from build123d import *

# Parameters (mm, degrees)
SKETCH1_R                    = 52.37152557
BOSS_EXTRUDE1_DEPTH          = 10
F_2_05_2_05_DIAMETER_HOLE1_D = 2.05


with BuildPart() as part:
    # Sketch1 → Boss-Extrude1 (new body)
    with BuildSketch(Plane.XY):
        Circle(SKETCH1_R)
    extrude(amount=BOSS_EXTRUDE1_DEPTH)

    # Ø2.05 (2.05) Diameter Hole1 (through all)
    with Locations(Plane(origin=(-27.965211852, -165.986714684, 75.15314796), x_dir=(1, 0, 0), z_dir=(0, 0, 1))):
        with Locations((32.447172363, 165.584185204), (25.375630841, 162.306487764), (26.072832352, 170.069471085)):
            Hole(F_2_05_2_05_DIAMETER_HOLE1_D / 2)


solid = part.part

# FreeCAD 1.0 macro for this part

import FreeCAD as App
import Part
import Sketcher
from FreeCAD import Vector
Q = App.Units.Quantity

doc = App.newDocument("Part")
params = doc.addObject("Spreadsheet::Sheet", "Params")
for row, (alias, value) in enumerate([
    ("pad1_length", "10 mm"),
    ("sketch2_diameter", "2.05 mm"),
    ("hole_diameter", "2.05 mm"),
], start=1):
    params.set(f"A{row}", alias)
    params.set(f"B{row}", "=" + value)
    params.setAlias(f"B{row}", alias)

body = doc.addObject("PartDesign::Body", "Body")

# Sketch on XY plane
sketch1 = doc.addObject("Sketcher::SketchObject", "Sketch")
body.addObject(sketch1)
sketch1.AttachmentSupport = (doc.XY_Plane, [""])
sketch1.MapMode = "FlatFace"
sketch1.addGeometry(Part.Circle(Vector(0, 0, 0), Vector(0, 0, 1), 52), False)
sketch1.addConstraint(Sketcher.Constraint("Coincident", 0, 3, -1, 1))
sketch1.addConstraint(Sketcher.Constraint("Diameter", 0, Q("104.743051 mm")))
pad1 = doc.addObject("PartDesign::Pad", "Pad")
body.addObject(pad1)
pad1.Profile = sketch1
pad1.setExpression("Length", "Params.pad1_length")

# Sketch on XY plane
sketch2 = doc.addObject("Sketcher::SketchObject", "Sketch001")
body.addObject(sketch2)
sketch2.AttachmentSupport = (doc.XY_Plane, [""])
sketch2.MapMode = "FlatFace"
sketch2.AttachmentOffset = App.Placement(Vector(0, 0, 75.153148), App.Rotation())
sketch2.addGeometry(Part.Circle(Vector(4.5, -0.4, 0), Vector(0, 0, 1), 1), False)
sketch2.addGeometry(Part.Circle(Vector(-2.6, -3.7, 0), Vector(0, 0, 1), 1), False)
sketch2.addGeometry(Part.Circle(Vector(-1.9, 4.1, 0), Vector(0, 0, 1), 1), False)
sketch2.addConstraint(Sketcher.Constraint("Equal", 0, 1))
sketch2.addConstraint(Sketcher.Constraint("Equal", 1, 2))
sketch2.addConstraint(Sketcher.Constraint("Diameter", 0, Q("2.05 mm")))
sketch2.addConstraint(Sketcher.Constraint("DistanceX", 1, 3, 2, 3, Q("0.697202 mm")))
sketch2.addConstraint(Sketcher.Constraint("DistanceX", -1, 1, 0, 3, Q("4.481961 mm")))
sketch2.addConstraint(Sketcher.Constraint("DistanceY", 0, 3, -1, 1, Q("0.402529 mm")))
sketch2.addConstraint(Sketcher.Constraint("DistanceX", 1, 3, -1, 1, Q("2.589581 mm")))
sketch2.addConstraint(Sketcher.Constraint("DistanceY", 1, 3, -1, 1, Q("3.680227 mm")))
sketch2.addConstraint(Sketcher.Constraint("DistanceY", -1, 1, 2, 3, Q("4.082756 mm")))
sketch2.setExpression("Constraints[2]", "Params.sketch2_diameter")
doc.recompute()
hole = doc.addObject("PartDesign::Hole", "Hole")
body.addObject(hole)
hole.Profile = sketch2
hole.ThreadType = "None"
hole.setExpression("Diameter", "Params.hole_diameter")
hole.DepthType = "ThroughAll"

doc.recompute()
